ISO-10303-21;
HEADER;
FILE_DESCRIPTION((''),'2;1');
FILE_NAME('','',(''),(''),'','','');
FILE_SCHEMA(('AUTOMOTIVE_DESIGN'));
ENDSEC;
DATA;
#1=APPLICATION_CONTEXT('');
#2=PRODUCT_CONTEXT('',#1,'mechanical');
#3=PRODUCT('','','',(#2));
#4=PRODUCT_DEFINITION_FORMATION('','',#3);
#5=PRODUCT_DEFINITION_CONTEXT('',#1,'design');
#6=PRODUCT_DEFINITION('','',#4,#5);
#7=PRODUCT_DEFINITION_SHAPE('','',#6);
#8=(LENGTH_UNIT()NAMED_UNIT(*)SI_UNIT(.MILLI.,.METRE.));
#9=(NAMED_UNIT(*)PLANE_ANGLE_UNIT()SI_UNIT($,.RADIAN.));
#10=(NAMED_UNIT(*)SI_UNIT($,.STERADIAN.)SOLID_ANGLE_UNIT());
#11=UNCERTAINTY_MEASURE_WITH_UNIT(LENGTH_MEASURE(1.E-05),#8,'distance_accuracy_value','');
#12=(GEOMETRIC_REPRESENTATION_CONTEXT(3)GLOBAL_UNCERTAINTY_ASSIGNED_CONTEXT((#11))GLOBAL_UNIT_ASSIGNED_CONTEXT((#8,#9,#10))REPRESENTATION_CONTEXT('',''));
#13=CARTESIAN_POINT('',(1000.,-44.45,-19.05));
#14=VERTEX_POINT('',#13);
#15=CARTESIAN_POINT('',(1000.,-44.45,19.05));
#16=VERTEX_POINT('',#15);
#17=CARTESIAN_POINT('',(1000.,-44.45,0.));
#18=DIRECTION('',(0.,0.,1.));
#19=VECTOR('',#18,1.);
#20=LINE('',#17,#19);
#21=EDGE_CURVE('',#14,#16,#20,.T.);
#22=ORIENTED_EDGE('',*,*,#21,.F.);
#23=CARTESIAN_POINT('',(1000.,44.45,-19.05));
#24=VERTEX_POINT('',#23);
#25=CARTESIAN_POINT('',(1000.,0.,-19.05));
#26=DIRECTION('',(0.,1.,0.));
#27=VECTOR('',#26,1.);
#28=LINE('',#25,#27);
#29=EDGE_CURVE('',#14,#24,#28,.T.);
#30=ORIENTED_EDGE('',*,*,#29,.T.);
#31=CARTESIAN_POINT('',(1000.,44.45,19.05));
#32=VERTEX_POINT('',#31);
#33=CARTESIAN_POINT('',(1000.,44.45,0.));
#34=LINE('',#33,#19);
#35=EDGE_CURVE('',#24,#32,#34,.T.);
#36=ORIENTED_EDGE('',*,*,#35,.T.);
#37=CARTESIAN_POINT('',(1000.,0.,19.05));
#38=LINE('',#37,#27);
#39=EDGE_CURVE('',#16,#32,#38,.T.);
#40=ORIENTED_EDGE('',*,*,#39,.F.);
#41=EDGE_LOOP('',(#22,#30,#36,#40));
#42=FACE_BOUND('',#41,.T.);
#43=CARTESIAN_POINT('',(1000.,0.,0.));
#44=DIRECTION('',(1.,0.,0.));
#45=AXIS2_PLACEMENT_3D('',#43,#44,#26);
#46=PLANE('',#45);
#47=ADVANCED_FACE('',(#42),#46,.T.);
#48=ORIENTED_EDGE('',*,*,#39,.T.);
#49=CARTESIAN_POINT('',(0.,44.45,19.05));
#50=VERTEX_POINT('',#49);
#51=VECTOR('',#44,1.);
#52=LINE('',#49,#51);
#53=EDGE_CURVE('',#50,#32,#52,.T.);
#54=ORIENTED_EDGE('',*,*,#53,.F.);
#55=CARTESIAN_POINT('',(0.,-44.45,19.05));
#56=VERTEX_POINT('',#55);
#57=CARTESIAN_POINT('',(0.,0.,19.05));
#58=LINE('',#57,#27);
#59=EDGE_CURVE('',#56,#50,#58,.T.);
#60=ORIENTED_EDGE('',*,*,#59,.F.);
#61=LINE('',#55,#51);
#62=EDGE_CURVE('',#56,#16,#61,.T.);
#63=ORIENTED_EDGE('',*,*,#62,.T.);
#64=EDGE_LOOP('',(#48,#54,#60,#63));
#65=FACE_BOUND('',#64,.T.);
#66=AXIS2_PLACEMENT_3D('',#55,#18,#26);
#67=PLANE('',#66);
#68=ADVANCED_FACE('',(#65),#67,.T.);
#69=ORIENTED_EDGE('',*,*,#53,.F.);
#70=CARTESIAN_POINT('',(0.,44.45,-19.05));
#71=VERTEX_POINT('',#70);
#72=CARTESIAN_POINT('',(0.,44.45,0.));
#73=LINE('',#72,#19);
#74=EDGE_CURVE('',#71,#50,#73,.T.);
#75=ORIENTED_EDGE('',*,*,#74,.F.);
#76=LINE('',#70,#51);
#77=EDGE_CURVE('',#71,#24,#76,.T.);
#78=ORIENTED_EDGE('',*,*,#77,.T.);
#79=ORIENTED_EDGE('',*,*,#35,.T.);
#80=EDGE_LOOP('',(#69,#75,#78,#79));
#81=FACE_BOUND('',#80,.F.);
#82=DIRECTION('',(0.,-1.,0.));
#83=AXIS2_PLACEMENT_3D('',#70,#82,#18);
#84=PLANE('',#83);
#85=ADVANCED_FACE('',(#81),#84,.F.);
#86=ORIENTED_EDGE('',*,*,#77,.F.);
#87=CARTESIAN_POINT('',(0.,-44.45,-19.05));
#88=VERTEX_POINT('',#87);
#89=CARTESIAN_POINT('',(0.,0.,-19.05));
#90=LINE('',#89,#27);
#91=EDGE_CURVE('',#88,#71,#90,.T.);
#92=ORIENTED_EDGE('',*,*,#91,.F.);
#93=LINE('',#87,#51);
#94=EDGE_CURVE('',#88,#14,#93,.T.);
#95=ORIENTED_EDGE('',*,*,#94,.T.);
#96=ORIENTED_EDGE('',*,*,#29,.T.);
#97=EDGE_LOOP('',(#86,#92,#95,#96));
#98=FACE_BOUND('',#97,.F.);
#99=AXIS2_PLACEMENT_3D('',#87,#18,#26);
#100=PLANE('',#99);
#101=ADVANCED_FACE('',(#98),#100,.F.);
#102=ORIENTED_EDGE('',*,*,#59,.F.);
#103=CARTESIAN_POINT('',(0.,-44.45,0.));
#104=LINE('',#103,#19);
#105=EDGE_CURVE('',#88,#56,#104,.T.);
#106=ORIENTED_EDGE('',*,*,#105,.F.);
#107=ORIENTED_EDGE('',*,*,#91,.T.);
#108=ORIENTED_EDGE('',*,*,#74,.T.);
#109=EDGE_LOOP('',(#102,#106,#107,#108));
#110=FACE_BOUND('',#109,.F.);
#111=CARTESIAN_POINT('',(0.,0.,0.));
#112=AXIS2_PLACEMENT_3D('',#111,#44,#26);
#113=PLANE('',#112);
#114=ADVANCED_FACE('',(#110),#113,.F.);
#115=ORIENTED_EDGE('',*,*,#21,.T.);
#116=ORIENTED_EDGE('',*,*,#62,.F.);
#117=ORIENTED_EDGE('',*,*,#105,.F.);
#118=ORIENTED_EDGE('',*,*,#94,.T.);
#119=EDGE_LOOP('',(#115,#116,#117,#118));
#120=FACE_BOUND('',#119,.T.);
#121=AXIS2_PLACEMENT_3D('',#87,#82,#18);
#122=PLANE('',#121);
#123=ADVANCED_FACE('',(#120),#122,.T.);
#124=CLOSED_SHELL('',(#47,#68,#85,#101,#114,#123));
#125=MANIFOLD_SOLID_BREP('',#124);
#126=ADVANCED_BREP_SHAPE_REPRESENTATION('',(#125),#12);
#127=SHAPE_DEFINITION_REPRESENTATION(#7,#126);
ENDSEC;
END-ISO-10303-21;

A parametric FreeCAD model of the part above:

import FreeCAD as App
import Part
import Sketcher
Q = App.Units.Quantity

doc = App.newDocument("Part")
body = doc.addObject("PartDesign::Body", "Body")

# Sketch on YZ plane
sketch1 = body.newObject("Sketcher::SketchObject", "Sketch")
sketch1.AttachmentSupport = (doc.getObject("YZ_Plane"), [""])
sketch1.MapMode = "FlatFace"
sketch1.addGeometry([
    Part.LineSegment(App.Vector(-44, 19, 0), App.Vector(-44, -19, 0)),
    Part.LineSegment(App.Vector(-44, -19, 0), App.Vector(44, -19, 0)),
    Part.LineSegment(App.Vector(44, -19, 0), App.Vector(44, 19, 0)),
    Part.LineSegment(App.Vector(44, 19, 0), App.Vector(-44, 19, 0)),
], False)
sketch1.addConstraint([
    Sketcher.Constraint("Coincident", 0, 2, 1, 1),
    Sketcher.Constraint("Coincident", 1, 2, 2, 1),
    Sketcher.Constraint("Coincident", 2, 2, 3, 1),
    Sketcher.Constraint("Coincident", 3, 2, 0, 1),
    Sketcher.Constraint("Vertical", 0),
    Sketcher.Constraint("Horizontal", 1),
    Sketcher.Constraint("Vertical", 2),
    Sketcher.Constraint("Horizontal", 3),
    Sketcher.Constraint("Symmetric", 0, 2, 2, 2, -1, 1),
    Sketcher.Constraint("DistanceX", 1, 1, 1, 2, Q("3.5 in")),
    Sketcher.Constraint("DistanceY", 0, 2, 0, 1, Q("1.5 in")),
])
pad1 = body.newObject("PartDesign::Pad", "Pad")
pad1.Profile = sketch1
pad1.Length = 1000

doc.recompute()
